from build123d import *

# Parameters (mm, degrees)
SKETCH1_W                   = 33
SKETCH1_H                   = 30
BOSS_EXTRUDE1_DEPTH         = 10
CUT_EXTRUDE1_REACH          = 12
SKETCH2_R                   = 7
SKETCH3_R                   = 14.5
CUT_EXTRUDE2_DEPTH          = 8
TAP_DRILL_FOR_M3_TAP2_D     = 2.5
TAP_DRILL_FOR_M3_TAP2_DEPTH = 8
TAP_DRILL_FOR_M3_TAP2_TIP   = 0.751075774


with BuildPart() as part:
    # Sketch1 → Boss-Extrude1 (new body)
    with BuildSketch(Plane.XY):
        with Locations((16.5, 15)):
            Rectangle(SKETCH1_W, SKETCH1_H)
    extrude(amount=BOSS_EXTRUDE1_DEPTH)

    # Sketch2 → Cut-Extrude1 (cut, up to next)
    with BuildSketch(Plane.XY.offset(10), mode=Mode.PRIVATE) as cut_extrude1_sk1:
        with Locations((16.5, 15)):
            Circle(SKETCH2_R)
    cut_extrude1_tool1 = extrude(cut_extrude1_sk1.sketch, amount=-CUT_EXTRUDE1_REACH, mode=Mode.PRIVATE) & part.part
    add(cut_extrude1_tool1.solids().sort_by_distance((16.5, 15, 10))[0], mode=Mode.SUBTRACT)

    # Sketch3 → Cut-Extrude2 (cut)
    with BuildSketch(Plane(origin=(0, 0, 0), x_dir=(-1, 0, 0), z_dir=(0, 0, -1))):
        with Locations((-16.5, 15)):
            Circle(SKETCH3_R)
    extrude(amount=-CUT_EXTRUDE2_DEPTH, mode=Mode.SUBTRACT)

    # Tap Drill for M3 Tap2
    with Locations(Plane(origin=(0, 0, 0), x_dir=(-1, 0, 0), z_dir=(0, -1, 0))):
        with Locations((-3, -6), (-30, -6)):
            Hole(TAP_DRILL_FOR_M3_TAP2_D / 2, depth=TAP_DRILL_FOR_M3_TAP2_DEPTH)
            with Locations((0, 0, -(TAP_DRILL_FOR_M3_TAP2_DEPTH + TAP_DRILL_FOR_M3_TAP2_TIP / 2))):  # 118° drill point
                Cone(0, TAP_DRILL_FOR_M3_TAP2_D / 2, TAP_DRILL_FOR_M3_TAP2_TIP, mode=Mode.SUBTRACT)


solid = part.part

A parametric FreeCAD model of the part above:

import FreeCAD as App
import Part
import Sketcher
from FreeCAD import Vector


def add_polygon(sketch, points):
    """Adds a closed chain of lines whose ends are joined by coincident constraints."""
    first, n = sketch.GeometryCount, len(points)
    for a, b in zip(points, points[1:] + points[:1]):
        sketch.addGeometry(Part.LineSegment(App.Vector(*a, 0), App.Vector(*b, 0)), False)
    for i in range(n):
        sketch.addConstraint(Sketcher.Constraint("Coincident", first + i, 2, first + (i + 1) % n, 1))

doc = App.newDocument("Part")
body = doc.addObject("PartDesign::Body", "Body")

sketch1 = body.newObject("Sketcher::SketchObject", "Sketch")
sketch1.AttachmentSupport = (doc.getObject("XY_Plane"), [""])
sketch1.MapMode = "FlatFace"
add_polygon(sketch1, [(0, 30), (0, 0), (33, 0), (33, 30)])
sketch1.addConstraint([
    Sketcher.Constraint("Vertical", 0),
    Sketcher.Constraint("Horizontal", 1),
    Sketcher.Constraint("Vertical", 2),
    Sketcher.Constraint("Horizontal", 3),
    Sketcher.Constraint("Coincident", 0, 2, -1, 1),
    Sketcher.Constraint("DistanceX", 1, 1, 1, 2, 33.0),
    Sketcher.Constraint("DistanceY", 0, 2, 0, 1, 30.0),
])
pad1 = body.newObject("PartDesign::Pad", "Pad")
pad1.Profile = sketch1
pad1.Length = 10

sketch2 = body.newObject("Sketcher::SketchObject", "Sketch001")
sketch2.AttachmentSupport = (doc.getObject("XY_Plane"), [""])
sketch2.MapMode = "FlatFace"
sketch2.AttachmentOffset = App.Placement(Vector(0, 0, 10), App.Rotation())
sketch2.addGeometry(Part.Circle(Vector(16, 15, 0), Vector(0, 0, 1), 7), False)
sketch2.addConstraint([
    Sketcher.Constraint("Diameter", 0, 14.0),
    Sketcher.Constraint("DistanceY", -1, 1, 0, 3, 15.0),
    Sketcher.Constraint("DistanceX", -1, 1, 0, 3, 16.5),
])
pocket1 = body.newObject("PartDesign::Pocket", "Pocket")
pocket1.Profile = sketch2
pocket1.Type = "UpToFirst"

sketch3 = body.newObject("Sketcher::SketchObject", "Sketch002")
sketch3.AttachmentSupport = (doc.getObject("XY_Plane"), [""])
sketch3.MapMode = "FlatFace"
sketch3.addGeometry(Part.Circle(Vector(16, 15, 0), Vector(0, 0, 1), 14), False)
sketch3.addConstraint([
    Sketcher.Constraint("Diameter", 0, 29.0),
    Sketcher.Constraint("DistanceY", -1, 1, 0, 3, 15.0),
    Sketcher.Constraint("DistanceX", -1, 1, 0, 3, 16.5),
])
pocket2 = body.newObject("PartDesign::Pocket", "Pocket001")
pocket2.Profile = sketch3
pocket2.Length = 8
pocket2.Reversed = True

sketch4 = body.newObject("Sketcher::SketchObject", "Sketch003")
sketch4.AttachmentSupport = (doc.getObject("XZ_Plane"), [""])
sketch4.MapMode = "FlatFace"
sketch4.addGeometry([
    Part.Circle(Vector(3, 6, 0), Vector(0, 0, 1), 1.2),
    Part.Circle(Vector(30, 6, 0), Vector(0, 0, 1), 1.2),
], False)
sketch4.addConstraint([
    Sketcher.Constraint("Equal", 0, 1),
    Sketcher.Constraint("Horizontal", 0, 3, 1, 3),
    Sketcher.Constraint("Diameter", 0, 2.5),
    Sketcher.Constraint("DistanceX", -1, 1, 0, 3, 3.0),
    Sketcher.Constraint("DistanceY", -1, 1, 0, 3, 6.0),
    Sketcher.Constraint("DistanceX", -1, 1, 1, 3, 30.0),
])
doc.recompute()
hole = body.newObject("PartDesign::Hole", "Hole")
hole.Profile = sketch4
hole.ThreadType = "None"
hole.Diameter = 2.5
hole.DepthType = "Dimension"
hole.Depth = 8
hole.DrillPoint = "Angled"
hole.DrillPointAngle = 118

doc.recompute()
